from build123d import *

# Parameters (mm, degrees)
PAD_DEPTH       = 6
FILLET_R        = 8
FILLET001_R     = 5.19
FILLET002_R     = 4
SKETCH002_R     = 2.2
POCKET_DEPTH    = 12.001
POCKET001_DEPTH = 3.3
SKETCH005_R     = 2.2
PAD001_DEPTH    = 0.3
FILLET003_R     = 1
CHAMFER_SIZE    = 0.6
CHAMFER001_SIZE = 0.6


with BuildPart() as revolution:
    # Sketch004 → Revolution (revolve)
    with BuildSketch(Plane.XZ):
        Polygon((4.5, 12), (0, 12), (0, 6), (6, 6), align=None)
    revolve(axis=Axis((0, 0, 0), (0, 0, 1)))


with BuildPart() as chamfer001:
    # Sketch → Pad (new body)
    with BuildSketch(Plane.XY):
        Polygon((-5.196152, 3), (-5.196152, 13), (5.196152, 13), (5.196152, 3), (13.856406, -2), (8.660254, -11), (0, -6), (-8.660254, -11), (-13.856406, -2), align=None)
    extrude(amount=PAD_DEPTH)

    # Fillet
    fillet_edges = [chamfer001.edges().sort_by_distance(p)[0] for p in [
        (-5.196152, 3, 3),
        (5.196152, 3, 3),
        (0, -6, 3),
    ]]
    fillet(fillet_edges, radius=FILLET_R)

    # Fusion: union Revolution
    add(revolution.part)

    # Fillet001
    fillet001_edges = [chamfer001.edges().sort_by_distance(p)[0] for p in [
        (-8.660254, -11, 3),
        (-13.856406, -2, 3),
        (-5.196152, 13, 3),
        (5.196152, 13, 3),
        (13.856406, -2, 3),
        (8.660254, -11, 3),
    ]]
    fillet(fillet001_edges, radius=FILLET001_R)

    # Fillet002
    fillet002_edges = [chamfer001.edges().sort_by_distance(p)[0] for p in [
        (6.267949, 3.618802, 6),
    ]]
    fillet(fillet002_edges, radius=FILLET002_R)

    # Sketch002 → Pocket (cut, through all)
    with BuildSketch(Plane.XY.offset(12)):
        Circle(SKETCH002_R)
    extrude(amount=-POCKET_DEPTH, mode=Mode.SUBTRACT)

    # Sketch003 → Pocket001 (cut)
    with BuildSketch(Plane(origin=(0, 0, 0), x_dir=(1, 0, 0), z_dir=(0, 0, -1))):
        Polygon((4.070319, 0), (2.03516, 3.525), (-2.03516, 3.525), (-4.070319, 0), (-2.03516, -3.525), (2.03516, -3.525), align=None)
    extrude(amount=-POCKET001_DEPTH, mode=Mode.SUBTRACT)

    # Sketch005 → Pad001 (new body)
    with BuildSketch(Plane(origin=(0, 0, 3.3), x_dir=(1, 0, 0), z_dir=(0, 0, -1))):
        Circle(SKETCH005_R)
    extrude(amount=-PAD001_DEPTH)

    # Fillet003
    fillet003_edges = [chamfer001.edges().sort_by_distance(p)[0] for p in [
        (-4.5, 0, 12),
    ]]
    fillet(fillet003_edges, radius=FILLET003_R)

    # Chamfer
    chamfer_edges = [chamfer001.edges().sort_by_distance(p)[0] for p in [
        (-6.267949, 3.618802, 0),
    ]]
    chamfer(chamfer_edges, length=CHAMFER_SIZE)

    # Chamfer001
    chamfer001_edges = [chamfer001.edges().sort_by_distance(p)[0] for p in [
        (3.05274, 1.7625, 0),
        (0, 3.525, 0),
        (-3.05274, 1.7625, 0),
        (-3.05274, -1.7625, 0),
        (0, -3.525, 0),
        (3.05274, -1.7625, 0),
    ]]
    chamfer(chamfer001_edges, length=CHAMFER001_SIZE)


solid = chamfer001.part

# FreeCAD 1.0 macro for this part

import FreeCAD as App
import Part
import Sketcher

V = App.Vector
Q = App.Units.Quantity


def edges_at(feature, points):
    """Names of the edges that pass closest to the given points."""
    edges = feature.Shape.Edges
    near = lambda p: min(range(len(edges)), key=lambda i: edges[i].distToShape(Part.Vertex(*p))[0])
    return sorted({f"Edge{near(p) + 1}" for p in points})

doc = App.newDocument("Part")
body = doc.addObject("PartDesign::Body", "Body")

sketch1 = doc.addObject("Sketcher::SketchObject", "Sketch")
body.addObject(sketch1)
sketch1.AttachmentSupport = (doc.XZ_Plane, [""])
sketch1.MapMode = "FlatFace"
sketch1.addGeometry([
    Part.LineSegment(V(4.5, 12, 0), V(0, 12, 0)),
    Part.LineSegment(V(0, 12, 0), V(0, 6, 0)),
    Part.LineSegment(V(0, 6, 0), V(6, 6, 0)),
    Part.LineSegment(V(6, 6, 0), V(4.5, 12, 0)),
], False)
sketch1.addConstraint([
    Sketcher.Constraint("Coincident", 0, 2, 1, 1),
    Sketcher.Constraint("Coincident", 1, 2, 2, 1),
    Sketcher.Constraint("Coincident", 2, 2, 3, 1),
    Sketcher.Constraint("Coincident", 3, 2, 0, 1),
    Sketcher.Constraint("Horizontal", 0),
    Sketcher.Constraint("Vertical", 1),
    Sketcher.Constraint("Horizontal", 2),
    Sketcher.Constraint("PointOnObject", 0, 2, -2),
    Sketcher.Constraint("Equal", 2, 1),
    Sketcher.Constraint("DistanceX", 2, 1, 2, 2, Q("6 mm")),
    Sketcher.Constraint("DistanceX", 0, 2, 0, 1, Q("4.5 mm")),
    Sketcher.Constraint("DistanceY", -1, 1, 0, 2, Q("12 mm")),
])
revolution = doc.addObject("PartDesign::Revolution", "Revolution")
body.addObject(revolution)
revolution.Profile = sketch1
revolution.ReferenceAxis = (sketch1, ["V_Axis"])
revolution.Angle = 360
body2 = doc.addObject("PartDesign::Body", "Body001")

sketch2 = doc.addObject("Sketcher::SketchObject", "Sketch001")
body2.addObject(sketch2)
sketch2.AttachmentSupport = (doc.getObject("XY_Plane001"), [""])
sketch2.MapMode = "FlatFace"
sketch2.addGeometry([
    Part.LineSegment(V(-5, 13, 0), V(-5, 3, 0)),
    Part.LineSegment(V(-5, 3, 0), V(-14, -2, 0)),
    Part.LineSegment(V(-14, -2, 0), V(-9, -11, 0)),
    Part.LineSegment(V(-9, -11, 0), V(0, -6, 0)),
    Part.LineSegment(V(0, -6, 0), V(9, -11, 0)),
    Part.LineSegment(V(9, -11, 0), V(14, -2, 0)),
    Part.LineSegment(V(14, -2, 0), V(5, 3, 0)),
    Part.LineSegment(V(5, 3, 0), V(5, 13, 0)),
    Part.LineSegment(V(5, 13, 0), V(-5, 13, 0)),
], False)
sketch2.addConstraint([
    Sketcher.Constraint("Coincident", 0, 2, 1, 1),
    Sketcher.Constraint("Coincident", 1, 2, 2, 1),
    Sketcher.Constraint("Coincident", 2, 2, 3, 1),
    Sketcher.Constraint("Coincident", 3, 2, 4, 1),
    Sketcher.Constraint("Coincident", 4, 2, 5, 1),
    Sketcher.Constraint("Coincident", 5, 2, 6, 1),
    Sketcher.Constraint("Coincident", 6, 2, 7, 1),
    Sketcher.Constraint("Coincident", 7, 2, 8, 1),
    Sketcher.Constraint("Coincident", 8, 2, 0, 1),
    Sketcher.Constraint("Vertical", 0),
    Sketcher.Constraint("Vertical", 7),
    Sketcher.Constraint("Horizontal", 8),
    Sketcher.Constraint("Symmetric", 2, 2, 4, 2, -2),
    Sketcher.Constraint("Symmetric", 1, 2, 5, 2, -2),
    Sketcher.Constraint("Symmetric", 0, 2, 6, 2, -2),
    Sketcher.Constraint("PointOnObject", 3, 2, -2),
    Sketcher.Constraint("Perpendicular", 1, 2),
    Sketcher.Constraint("Perpendicular", 2, 3),
    Sketcher.Constraint("Equal", 1, 3),
    Sketcher.Constraint("DistanceY", 0, 2, 0, 1, Q("10 mm")),
    Sketcher.Constraint("Angle", 1, Q("-150 deg")),
    Sketcher.Constraint("Distance", 1, Q("10 mm")),
    Sketcher.Constraint("DistanceY", -1, 1, 0, 2, Q("3 mm")),
    Sketcher.Constraint("DistanceY", 2, 2, -1, 1, Q("11 mm")),
])
pad1 = doc.addObject("PartDesign::Pad", "Pad")
body2.addObject(pad1)
pad1.Profile = sketch2
pad1.Length = 6
doc.recompute()

fillet = doc.addObject("PartDesign::Fillet", "Fillet")
body2.addObject(fillet)
fillet.Base = (pad1, edges_at(pad1, [(-5.196, 3, 3), (5.196, 3, 3), (0, -6, 3)]))
fillet.Radius = 8
doc.recompute()

boolean = doc.addObject("PartDesign::Boolean", "Boolean")
body2.addObject(boolean)
boolean.Type = "Fuse"
boolean.addObjects([body])
doc.recompute()

fillet2 = doc.addObject("PartDesign::Fillet", "Fillet001")
body2.addObject(fillet2)
fillet2.Base = (boolean, edges_at(boolean, [
    (-8.66, -11, 3),
    (-13.856, -2, 3),
    (-5.196, 13, 3),
    (5.196, 13, 3),
    (13.856, -2, 3),
    (8.66, -11, 3),
]))
fillet2.Radius = 5.19
doc.recompute()

fillet3 = doc.addObject("PartDesign::Fillet", "Fillet002")
body2.addObject(fillet3)
fillet3.Base = (fillet2, edges_at(fillet2, [(6.268, 3.619, 6)]))
fillet3.Radius = 4

sketch3 = doc.addObject("Sketcher::SketchObject", "Sketch002")
body2.addObject(sketch3)
sketch3.AttachmentSupport = (doc.getObject("XY_Plane001"), [""])
sketch3.MapMode = "FlatFace"
sketch3.AttachmentOffset = App.Placement(V(0, 0, 12), App.Rotation())
sketch3.addGeometry(Part.Circle(V(0, 0, 0), V(0, 0, 1), 2.2), False)
sketch3.addConstraint([
    Sketcher.Constraint("Coincident", 0, 3, -1, 1),
    Sketcher.Constraint("Diameter", 0, Q("4.4 mm")),
])
pocket1 = doc.addObject("PartDesign::Pocket", "Pocket")
body2.addObject(pocket1)
pocket1.Profile = sketch3
pocket1.Type = "ThroughAll"

sketch4 = doc.addObject("Sketcher::SketchObject", "Sketch003")
body2.addObject(sketch4)
sketch4.AttachmentSupport = (doc.getObject("XY_Plane001"), [""])
sketch4.MapMode = "FlatFace"
sketch4.addGeometry([
    Part.LineSegment(V(4.1, 0, 0), V(2, -3.5, 0)),
    Part.LineSegment(V(2, -3.5, 0), V(-2, -3.5, 0)),
    Part.LineSegment(V(-2, -3.5, 0), V(-4.1, 0, 0)),
    Part.LineSegment(V(-4.1, 0, 0), V(-2, 3.5, 0)),
    Part.LineSegment(V(-2, 3.5, 0), V(2, 3.5, 0)),
    Part.LineSegment(V(2, 3.5, 0), V(4.1, 0, 0)),
], False)
sketch4.addConstraint([
    Sketcher.Constraint("Coincident", 0, 2, 1, 1),
    Sketcher.Constraint("Coincident", 1, 2, 2, 1),
    Sketcher.Constraint("Coincident", 2, 2, 3, 1),
    Sketcher.Constraint("Coincident", 3, 2, 4, 1),
    Sketcher.Constraint("Coincident", 4, 2, 5, 1),
    Sketcher.Constraint("Coincident", 5, 2, 0, 1),
    Sketcher.Constraint("Horizontal", 1),
    Sketcher.Constraint("Horizontal", 4),
    Sketcher.Constraint("Symmetric", 0, 2, 3, 2, -1, 1),
    Sketcher.Constraint("Symmetric", 2, 2, 5, 2, -1, 1),
    Sketcher.Constraint("PointOnObject", 2, 2, -1),
    Sketcher.Constraint("Parallel", 2, 5),
    Sketcher.Constraint("Vertical", 1, 2, 3, 2),
    Sketcher.Constraint("Angle", 0, Q("-119.999991 deg")),
    Sketcher.Constraint("DistanceY", 1, 2, 3, 2, Q("7.05 mm")),
    Sketcher.Constraint("DistanceX", 1, 2, 1, 1, Q("4.07032 mm")),
])
pocket2 = doc.addObject("PartDesign::Pocket", "Pocket001")
body2.addObject(pocket2)
pocket2.Profile = sketch4
pocket2.Length = 3.3
pocket2.Reversed = True

sketch5 = doc.addObject("Sketcher::SketchObject", "Sketch004")
body2.addObject(sketch5)
sketch5.AttachmentSupport = (doc.getObject("XY_Plane001"), [""])
sketch5.MapMode = "FlatFace"
sketch5.AttachmentOffset = App.Placement(V(0, 0, 3.3), App.Rotation())
sketch5.addGeometry(Part.Circle(V(0, 0, 0), V(0, 0, 1), 2.2), False)
sketch5.addConstraint([
    Sketcher.Constraint("Coincident", 0, 3, -1, 1),
    Sketcher.Constraint("Diameter", 0, Q("4.4 mm")),
])
pad2 = doc.addObject("PartDesign::Pad", "Pad001")
body2.addObject(pad2)
pad2.Profile = sketch5
pad2.Length = 0.3
doc.recompute()

fillet4 = doc.addObject("PartDesign::Fillet", "Fillet003")
body2.addObject(fillet4)
fillet4.Base = (pad2, edges_at(pad2, [(-4.5, 0, 12)]))
fillet4.Radius = 1
doc.recompute()

chamfer = doc.addObject("PartDesign::Chamfer", "Chamfer")
body2.addObject(chamfer)
chamfer.Base = (fillet4, edges_at(fillet4, [(-6.268, 3.619, 0)]))
chamfer.Size = 0.6
doc.recompute()

chamfer2 = doc.addObject("PartDesign::Chamfer", "Chamfer001")
body2.addObject(chamfer2)
chamfer2.Base = (chamfer, edges_at(chamfer, [
    (3.053, 1.762, 0),
    (0, 3.525, 0),
    (-3.053, 1.762, 0),
    (-3.053, -1.762, 0),
    (0, -3.525, 0),
    (3.053, -1.762, 0),
]))
chamfer2.Size = 0.6

doc.recompute()
